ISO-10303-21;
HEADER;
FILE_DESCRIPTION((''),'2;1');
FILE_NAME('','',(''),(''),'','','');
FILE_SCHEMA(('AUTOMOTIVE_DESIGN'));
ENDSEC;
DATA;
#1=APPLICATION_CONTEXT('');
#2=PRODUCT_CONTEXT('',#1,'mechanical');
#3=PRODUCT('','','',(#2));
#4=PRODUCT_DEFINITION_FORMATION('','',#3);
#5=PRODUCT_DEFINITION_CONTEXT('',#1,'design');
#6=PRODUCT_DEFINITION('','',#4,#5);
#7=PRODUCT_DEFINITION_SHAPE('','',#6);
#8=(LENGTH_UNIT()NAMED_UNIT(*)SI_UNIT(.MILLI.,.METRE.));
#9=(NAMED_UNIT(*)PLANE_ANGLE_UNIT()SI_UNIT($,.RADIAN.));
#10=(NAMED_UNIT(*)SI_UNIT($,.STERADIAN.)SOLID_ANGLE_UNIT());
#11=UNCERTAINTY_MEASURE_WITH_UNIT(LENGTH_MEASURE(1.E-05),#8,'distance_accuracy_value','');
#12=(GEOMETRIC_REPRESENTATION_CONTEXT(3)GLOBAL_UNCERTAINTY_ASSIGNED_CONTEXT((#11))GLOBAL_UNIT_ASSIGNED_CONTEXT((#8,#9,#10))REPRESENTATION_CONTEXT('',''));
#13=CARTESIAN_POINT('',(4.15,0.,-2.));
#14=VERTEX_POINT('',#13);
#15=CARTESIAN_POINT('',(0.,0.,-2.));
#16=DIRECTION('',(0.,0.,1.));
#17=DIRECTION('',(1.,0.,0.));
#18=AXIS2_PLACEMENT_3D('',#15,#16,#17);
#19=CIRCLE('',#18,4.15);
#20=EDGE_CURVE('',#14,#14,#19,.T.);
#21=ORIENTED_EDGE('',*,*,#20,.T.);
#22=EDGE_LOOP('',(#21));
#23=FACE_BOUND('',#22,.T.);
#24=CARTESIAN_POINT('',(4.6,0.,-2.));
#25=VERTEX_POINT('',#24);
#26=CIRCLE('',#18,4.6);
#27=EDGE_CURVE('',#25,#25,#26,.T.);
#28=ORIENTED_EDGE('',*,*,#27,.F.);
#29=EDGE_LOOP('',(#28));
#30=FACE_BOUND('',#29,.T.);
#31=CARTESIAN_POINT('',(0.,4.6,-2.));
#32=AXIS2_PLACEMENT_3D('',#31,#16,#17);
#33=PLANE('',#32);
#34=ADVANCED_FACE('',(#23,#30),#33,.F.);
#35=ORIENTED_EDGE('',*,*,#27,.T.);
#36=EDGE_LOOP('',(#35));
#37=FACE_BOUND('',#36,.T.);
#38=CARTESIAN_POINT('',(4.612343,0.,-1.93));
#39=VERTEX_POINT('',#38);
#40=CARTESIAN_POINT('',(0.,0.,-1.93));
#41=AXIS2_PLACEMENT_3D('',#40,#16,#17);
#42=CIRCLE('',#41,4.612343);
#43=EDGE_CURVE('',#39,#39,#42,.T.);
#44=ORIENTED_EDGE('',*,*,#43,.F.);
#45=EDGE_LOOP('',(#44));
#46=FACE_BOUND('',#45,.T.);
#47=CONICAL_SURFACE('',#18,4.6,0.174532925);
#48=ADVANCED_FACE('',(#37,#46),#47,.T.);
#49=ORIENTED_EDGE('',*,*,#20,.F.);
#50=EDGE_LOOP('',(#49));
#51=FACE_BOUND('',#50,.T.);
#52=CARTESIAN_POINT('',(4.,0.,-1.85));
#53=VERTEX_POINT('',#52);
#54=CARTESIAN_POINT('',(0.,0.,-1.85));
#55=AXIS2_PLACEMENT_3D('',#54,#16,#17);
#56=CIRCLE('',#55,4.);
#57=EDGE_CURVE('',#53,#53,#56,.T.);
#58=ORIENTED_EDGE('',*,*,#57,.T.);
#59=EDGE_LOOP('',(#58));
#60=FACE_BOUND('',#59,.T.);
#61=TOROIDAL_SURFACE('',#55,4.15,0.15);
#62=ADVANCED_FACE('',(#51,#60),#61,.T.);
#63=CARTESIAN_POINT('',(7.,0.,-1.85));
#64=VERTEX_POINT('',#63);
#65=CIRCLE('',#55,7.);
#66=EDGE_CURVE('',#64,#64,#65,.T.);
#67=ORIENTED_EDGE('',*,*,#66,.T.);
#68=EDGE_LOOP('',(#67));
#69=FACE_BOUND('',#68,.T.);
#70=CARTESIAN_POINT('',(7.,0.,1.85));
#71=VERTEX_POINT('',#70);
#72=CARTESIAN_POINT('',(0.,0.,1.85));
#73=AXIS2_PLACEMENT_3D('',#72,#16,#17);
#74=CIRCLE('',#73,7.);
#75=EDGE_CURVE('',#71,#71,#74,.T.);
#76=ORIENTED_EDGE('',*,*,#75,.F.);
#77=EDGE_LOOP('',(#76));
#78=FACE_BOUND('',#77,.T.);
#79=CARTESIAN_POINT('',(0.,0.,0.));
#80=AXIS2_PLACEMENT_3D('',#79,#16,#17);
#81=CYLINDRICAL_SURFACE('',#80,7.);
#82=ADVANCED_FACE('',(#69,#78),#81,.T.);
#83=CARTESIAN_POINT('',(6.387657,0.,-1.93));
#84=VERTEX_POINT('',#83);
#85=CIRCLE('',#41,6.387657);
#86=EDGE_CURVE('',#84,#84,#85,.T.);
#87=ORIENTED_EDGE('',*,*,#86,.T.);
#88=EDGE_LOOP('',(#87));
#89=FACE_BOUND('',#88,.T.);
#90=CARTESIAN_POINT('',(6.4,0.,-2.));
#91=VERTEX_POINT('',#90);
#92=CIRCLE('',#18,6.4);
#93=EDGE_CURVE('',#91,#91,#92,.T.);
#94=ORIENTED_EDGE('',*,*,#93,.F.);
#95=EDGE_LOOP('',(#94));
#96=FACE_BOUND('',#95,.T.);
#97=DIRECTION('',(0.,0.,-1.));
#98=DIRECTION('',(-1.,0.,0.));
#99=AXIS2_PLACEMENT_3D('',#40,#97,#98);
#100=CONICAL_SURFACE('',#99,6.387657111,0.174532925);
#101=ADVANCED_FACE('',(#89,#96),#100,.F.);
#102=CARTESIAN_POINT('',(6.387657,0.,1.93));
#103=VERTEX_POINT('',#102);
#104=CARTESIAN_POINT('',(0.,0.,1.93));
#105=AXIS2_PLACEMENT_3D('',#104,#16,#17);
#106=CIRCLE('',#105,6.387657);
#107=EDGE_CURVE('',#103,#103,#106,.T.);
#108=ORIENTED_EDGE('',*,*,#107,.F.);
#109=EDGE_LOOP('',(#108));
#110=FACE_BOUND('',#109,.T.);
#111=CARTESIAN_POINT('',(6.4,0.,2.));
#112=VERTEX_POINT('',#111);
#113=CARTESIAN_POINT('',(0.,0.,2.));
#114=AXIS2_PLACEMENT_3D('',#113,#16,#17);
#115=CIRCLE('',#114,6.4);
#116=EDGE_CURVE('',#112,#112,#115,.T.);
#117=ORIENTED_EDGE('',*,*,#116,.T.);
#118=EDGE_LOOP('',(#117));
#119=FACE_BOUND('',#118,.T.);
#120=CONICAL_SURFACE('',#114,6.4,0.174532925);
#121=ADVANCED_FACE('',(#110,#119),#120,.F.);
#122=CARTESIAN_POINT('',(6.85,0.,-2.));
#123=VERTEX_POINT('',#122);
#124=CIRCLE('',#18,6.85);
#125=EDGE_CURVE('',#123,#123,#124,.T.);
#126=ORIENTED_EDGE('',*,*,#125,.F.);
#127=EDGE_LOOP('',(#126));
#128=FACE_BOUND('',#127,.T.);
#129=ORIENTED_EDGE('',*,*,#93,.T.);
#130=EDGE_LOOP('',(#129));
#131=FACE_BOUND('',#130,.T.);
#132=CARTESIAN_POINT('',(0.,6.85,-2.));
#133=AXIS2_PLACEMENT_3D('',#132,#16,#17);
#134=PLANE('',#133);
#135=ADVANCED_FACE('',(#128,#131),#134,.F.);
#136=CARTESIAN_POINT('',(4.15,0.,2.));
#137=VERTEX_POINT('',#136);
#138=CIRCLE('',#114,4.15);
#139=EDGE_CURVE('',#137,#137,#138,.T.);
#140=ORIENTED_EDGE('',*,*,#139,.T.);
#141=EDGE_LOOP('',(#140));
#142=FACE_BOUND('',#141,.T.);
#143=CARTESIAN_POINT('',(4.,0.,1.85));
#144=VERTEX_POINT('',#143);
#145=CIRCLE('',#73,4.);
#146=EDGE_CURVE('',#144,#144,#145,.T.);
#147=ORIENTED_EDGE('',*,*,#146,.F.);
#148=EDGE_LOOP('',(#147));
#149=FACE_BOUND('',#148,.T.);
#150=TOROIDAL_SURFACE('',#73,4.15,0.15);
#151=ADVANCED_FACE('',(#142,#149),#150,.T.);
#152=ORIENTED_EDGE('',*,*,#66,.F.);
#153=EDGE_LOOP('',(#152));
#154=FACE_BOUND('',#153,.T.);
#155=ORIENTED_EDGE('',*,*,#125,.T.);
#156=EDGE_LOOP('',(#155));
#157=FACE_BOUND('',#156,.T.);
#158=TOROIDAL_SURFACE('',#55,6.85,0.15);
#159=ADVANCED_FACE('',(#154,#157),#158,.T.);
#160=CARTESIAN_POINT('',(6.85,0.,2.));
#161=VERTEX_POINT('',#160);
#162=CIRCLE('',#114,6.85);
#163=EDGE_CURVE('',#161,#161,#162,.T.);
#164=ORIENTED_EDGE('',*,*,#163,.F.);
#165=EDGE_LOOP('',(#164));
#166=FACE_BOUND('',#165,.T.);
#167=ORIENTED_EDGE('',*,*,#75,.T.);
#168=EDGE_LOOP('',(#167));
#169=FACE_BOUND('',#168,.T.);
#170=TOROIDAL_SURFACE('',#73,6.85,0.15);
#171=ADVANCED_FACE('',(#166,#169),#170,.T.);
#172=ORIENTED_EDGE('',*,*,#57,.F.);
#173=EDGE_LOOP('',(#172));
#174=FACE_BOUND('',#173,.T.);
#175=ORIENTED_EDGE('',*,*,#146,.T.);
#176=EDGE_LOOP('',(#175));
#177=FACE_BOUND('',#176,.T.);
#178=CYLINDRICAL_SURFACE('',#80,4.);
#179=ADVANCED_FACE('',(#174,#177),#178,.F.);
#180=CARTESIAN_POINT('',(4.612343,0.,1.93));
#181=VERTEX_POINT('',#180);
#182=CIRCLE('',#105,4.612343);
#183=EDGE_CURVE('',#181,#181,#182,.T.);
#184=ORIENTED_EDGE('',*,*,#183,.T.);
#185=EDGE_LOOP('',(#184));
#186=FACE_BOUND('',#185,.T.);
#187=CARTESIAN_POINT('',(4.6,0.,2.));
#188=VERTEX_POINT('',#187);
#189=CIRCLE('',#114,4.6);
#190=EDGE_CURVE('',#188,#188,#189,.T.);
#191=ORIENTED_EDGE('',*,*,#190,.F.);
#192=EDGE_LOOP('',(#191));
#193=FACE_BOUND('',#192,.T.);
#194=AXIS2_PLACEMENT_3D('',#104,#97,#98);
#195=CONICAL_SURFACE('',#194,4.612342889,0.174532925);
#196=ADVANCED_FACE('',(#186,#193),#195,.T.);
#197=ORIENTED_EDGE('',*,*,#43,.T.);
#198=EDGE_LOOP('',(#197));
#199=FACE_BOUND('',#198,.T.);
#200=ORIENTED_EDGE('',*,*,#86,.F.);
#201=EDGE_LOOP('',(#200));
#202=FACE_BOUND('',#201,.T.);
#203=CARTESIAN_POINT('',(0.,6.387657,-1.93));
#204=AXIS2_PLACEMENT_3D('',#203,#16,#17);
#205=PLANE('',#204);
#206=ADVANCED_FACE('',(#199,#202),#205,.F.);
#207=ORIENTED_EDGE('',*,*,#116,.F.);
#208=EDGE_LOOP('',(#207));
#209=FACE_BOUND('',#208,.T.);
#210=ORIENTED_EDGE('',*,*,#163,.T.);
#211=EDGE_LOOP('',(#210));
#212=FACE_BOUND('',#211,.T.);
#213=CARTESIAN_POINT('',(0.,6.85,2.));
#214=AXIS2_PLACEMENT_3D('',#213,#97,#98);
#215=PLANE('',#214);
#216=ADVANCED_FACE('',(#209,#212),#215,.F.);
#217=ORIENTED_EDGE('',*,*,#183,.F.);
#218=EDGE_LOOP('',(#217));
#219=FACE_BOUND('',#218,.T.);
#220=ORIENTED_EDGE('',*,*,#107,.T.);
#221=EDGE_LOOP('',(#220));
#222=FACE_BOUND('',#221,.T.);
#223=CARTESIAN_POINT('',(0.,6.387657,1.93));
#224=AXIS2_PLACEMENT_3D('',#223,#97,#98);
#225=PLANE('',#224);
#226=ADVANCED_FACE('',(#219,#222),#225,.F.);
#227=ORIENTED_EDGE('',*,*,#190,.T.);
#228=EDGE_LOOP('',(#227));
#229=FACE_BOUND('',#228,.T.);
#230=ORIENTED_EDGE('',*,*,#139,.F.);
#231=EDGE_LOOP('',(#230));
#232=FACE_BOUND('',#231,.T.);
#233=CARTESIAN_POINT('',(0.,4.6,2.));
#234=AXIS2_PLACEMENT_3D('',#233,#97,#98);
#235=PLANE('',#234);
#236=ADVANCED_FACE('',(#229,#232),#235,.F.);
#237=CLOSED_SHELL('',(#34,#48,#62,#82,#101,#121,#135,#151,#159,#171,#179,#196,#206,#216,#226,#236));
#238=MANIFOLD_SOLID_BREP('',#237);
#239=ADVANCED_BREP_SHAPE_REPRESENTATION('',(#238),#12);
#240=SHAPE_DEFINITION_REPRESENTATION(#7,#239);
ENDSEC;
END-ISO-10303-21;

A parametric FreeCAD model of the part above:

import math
import FreeCAD as App
import Part
import Sketcher
Q = App.Units.Quantity

doc = App.newDocument("Part")
body = doc.addObject("PartDesign::Body", "Body")

# Sketch on YZ plane
sketch1 = body.newObject("Sketcher::SketchObject", "Sketch")
sketch1.AttachmentSupport = (doc.getObject("YZ_Plane"), [""])
sketch1.MapMode = "FlatFace"
sketch1.addGeometry(Part.LineSegment(App.Vector(7, -1.85, 0), App.Vector(7, 1.85, 0)), False)
sketch1.addGeometry(Part.ArcOfCircle(Part.Circle(App.Vector(6.85, 1.85, 0), App.Vector(0, 0, 1), 0.15), math.radians(0), math.radians(90)), False)
sketch1.addGeometry(Part.LineSegment(App.Vector(6.85, 2, 0), App.Vector(6.4, 2, 0)), False)
sketch1.addGeometry(Part.LineSegment(App.Vector(6.4, 2, 0), App.Vector(6.39, 1.93, 0)), False)
sketch1.addGeometry(Part.LineSegment(App.Vector(6.39, 1.93, 0), App.Vector(4.61, 1.93, 0)), False)
sketch1.addGeometry(Part.LineSegment(App.Vector(4.61, 1.93, 0), App.Vector(4.6, 2, 0)), False)
sketch1.addGeometry(Part.LineSegment(App.Vector(4.6, 2, 0), App.Vector(4.15, 2, 0)), False)
sketch1.addGeometry(Part.ArcOfCircle(Part.Circle(App.Vector(4.15, 1.85, 0), App.Vector(0, 0, 1), 0.15), math.radians(90), math.radians(180)), False)
sketch1.addGeometry(Part.LineSegment(App.Vector(4, 1.85, 0), App.Vector(4, -1.85, 0)), False)
sketch1.addGeometry(Part.ArcOfCircle(Part.Circle(App.Vector(4.15, -1.85, 0), App.Vector(0, 0, 1), 0.15), math.radians(-180), math.radians(-90)), False)
sketch1.addGeometry(Part.LineSegment(App.Vector(4.15, -2, 0), App.Vector(4.6, -2, 0)), False)
sketch1.addGeometry(Part.LineSegment(App.Vector(4.6, -2, 0), App.Vector(4.61, -1.93, 0)), False)
sketch1.addGeometry(Part.LineSegment(App.Vector(4.61, -1.93, 0), App.Vector(6.39, -1.93, 0)), False)
sketch1.addGeometry(Part.LineSegment(App.Vector(6.39, -1.93, 0), App.Vector(6.4, -2, 0)), False)
sketch1.addGeometry(Part.LineSegment(App.Vector(6.4, -2, 0), App.Vector(6.85, -2, 0)), False)
sketch1.addGeometry(Part.ArcOfCircle(Part.Circle(App.Vector(6.85, -1.85, 0), App.Vector(0, 0, 1), 0.15), math.radians(-90), math.radians(0)), False)
sketch1.addConstraint(Sketcher.Constraint("Tangent", 0, 2, 1, 1))
sketch1.addConstraint(Sketcher.Constraint("Tangent", 1, 2, 2, 1))
sketch1.addConstraint(Sketcher.Constraint("Coincident", 2, 2, 3, 1))
sketch1.addConstraint(Sketcher.Constraint("Coincident", 3, 2, 4, 1))
sketch1.addConstraint(Sketcher.Constraint("Coincident", 4, 2, 5, 1))
sketch1.addConstraint(Sketcher.Constraint("Coincident", 5, 2, 6, 1))
sketch1.addConstraint(Sketcher.Constraint("Tangent", 6, 2, 7, 1))
sketch1.addConstraint(Sketcher.Constraint("Tangent", 7, 2, 8, 1))
sketch1.addConstraint(Sketcher.Constraint("Tangent", 8, 2, 9, 1))
sketch1.addConstraint(Sketcher.Constraint("Tangent", 9, 2, 10, 1))
sketch1.addConstraint(Sketcher.Constraint("Coincident", 10, 2, 11, 1))
sketch1.addConstraint(Sketcher.Constraint("Coincident", 11, 2, 12, 1))
sketch1.addConstraint(Sketcher.Constraint("Coincident", 12, 2, 13, 1))
sketch1.addConstraint(Sketcher.Constraint("Coincident", 13, 2, 14, 1))
sketch1.addConstraint(Sketcher.Constraint("Tangent", 14, 2, 15, 1))
sketch1.addConstraint(Sketcher.Constraint("Tangent", 15, 2, 0, 1))
sketch1.addConstraint(Sketcher.Constraint("Vertical", 0))
sketch1.addConstraint(Sketcher.Constraint("Horizontal", 2))
sketch1.addConstraint(Sketcher.Constraint("Horizontal", 4))
sketch1.addConstraint(Sketcher.Constraint("Horizontal", 6))
sketch1.addConstraint(Sketcher.Constraint("Vertical", 8))
sketch1.addConstraint(Sketcher.Constraint("Horizontal", 10))
sketch1.addConstraint(Sketcher.Constraint("Horizontal", 12))
sketch1.addConstraint(Sketcher.Constraint("Horizontal", 14))
sketch1.addConstraint(Sketcher.Constraint("Equal", 1, 7))
sketch1.addConstraint(Sketcher.Constraint("Equal", 7, 9))
sketch1.addConstraint(Sketcher.Constraint("Equal", 9, 15))
sketch1.addConstraint(Sketcher.Constraint("Symmetric", 5, 2, 10, 2, -1))
sketch1.addConstraint(Sketcher.Constraint("Symmetric", 4, 2, 11, 2, -1))
sketch1.addConstraint(Sketcher.Constraint("Symmetric", 2, 2, 13, 2, -1))
sketch1.addConstraint(Sketcher.Constraint("Parallel", 3, 11))
sketch1.addConstraint(Sketcher.Constraint("Parallel", 5, 13))
sketch1.addConstraint(Sketcher.Constraint("Horizontal", 1, 3, 7, 3))
sketch1.addConstraint(Sketcher.Constraint("Equal", 2, 6))
sketch1.addConstraint(Sketcher.Constraint("Angle", 3, Q("-100 deg")))
sketch1.addConstraint(Sketcher.Constraint("Radius", 1, Q("0.15 mm")))
sketch1.addConstraint(Sketcher.Constraint("DistanceY", 0, 1, 0, 2, Q("3.7 mm")))
sketch1.addConstraint(Sketcher.Constraint("DistanceX", -1, 1, 0, 2, Q("7 mm")))
sketch1.addConstraint(Sketcher.Constraint("DistanceX", -1, 1, 7, 2, Q("4 mm")))
sketch1.addConstraint(Sketcher.Constraint("DistanceX", 2, 2, 2, 1, Q("0.45 mm")))
sketch1.addConstraint(Sketcher.Constraint("DistanceY", -1, 1, 3, 2, Q("1.93 mm")))
revolution = body.newObject("PartDesign::Revolution", "Revolution")
revolution.Profile = sketch1
revolution.ReferenceAxis = (sketch1, ["V_Axis"])
revolution.Angle = 360

doc.recompute()
